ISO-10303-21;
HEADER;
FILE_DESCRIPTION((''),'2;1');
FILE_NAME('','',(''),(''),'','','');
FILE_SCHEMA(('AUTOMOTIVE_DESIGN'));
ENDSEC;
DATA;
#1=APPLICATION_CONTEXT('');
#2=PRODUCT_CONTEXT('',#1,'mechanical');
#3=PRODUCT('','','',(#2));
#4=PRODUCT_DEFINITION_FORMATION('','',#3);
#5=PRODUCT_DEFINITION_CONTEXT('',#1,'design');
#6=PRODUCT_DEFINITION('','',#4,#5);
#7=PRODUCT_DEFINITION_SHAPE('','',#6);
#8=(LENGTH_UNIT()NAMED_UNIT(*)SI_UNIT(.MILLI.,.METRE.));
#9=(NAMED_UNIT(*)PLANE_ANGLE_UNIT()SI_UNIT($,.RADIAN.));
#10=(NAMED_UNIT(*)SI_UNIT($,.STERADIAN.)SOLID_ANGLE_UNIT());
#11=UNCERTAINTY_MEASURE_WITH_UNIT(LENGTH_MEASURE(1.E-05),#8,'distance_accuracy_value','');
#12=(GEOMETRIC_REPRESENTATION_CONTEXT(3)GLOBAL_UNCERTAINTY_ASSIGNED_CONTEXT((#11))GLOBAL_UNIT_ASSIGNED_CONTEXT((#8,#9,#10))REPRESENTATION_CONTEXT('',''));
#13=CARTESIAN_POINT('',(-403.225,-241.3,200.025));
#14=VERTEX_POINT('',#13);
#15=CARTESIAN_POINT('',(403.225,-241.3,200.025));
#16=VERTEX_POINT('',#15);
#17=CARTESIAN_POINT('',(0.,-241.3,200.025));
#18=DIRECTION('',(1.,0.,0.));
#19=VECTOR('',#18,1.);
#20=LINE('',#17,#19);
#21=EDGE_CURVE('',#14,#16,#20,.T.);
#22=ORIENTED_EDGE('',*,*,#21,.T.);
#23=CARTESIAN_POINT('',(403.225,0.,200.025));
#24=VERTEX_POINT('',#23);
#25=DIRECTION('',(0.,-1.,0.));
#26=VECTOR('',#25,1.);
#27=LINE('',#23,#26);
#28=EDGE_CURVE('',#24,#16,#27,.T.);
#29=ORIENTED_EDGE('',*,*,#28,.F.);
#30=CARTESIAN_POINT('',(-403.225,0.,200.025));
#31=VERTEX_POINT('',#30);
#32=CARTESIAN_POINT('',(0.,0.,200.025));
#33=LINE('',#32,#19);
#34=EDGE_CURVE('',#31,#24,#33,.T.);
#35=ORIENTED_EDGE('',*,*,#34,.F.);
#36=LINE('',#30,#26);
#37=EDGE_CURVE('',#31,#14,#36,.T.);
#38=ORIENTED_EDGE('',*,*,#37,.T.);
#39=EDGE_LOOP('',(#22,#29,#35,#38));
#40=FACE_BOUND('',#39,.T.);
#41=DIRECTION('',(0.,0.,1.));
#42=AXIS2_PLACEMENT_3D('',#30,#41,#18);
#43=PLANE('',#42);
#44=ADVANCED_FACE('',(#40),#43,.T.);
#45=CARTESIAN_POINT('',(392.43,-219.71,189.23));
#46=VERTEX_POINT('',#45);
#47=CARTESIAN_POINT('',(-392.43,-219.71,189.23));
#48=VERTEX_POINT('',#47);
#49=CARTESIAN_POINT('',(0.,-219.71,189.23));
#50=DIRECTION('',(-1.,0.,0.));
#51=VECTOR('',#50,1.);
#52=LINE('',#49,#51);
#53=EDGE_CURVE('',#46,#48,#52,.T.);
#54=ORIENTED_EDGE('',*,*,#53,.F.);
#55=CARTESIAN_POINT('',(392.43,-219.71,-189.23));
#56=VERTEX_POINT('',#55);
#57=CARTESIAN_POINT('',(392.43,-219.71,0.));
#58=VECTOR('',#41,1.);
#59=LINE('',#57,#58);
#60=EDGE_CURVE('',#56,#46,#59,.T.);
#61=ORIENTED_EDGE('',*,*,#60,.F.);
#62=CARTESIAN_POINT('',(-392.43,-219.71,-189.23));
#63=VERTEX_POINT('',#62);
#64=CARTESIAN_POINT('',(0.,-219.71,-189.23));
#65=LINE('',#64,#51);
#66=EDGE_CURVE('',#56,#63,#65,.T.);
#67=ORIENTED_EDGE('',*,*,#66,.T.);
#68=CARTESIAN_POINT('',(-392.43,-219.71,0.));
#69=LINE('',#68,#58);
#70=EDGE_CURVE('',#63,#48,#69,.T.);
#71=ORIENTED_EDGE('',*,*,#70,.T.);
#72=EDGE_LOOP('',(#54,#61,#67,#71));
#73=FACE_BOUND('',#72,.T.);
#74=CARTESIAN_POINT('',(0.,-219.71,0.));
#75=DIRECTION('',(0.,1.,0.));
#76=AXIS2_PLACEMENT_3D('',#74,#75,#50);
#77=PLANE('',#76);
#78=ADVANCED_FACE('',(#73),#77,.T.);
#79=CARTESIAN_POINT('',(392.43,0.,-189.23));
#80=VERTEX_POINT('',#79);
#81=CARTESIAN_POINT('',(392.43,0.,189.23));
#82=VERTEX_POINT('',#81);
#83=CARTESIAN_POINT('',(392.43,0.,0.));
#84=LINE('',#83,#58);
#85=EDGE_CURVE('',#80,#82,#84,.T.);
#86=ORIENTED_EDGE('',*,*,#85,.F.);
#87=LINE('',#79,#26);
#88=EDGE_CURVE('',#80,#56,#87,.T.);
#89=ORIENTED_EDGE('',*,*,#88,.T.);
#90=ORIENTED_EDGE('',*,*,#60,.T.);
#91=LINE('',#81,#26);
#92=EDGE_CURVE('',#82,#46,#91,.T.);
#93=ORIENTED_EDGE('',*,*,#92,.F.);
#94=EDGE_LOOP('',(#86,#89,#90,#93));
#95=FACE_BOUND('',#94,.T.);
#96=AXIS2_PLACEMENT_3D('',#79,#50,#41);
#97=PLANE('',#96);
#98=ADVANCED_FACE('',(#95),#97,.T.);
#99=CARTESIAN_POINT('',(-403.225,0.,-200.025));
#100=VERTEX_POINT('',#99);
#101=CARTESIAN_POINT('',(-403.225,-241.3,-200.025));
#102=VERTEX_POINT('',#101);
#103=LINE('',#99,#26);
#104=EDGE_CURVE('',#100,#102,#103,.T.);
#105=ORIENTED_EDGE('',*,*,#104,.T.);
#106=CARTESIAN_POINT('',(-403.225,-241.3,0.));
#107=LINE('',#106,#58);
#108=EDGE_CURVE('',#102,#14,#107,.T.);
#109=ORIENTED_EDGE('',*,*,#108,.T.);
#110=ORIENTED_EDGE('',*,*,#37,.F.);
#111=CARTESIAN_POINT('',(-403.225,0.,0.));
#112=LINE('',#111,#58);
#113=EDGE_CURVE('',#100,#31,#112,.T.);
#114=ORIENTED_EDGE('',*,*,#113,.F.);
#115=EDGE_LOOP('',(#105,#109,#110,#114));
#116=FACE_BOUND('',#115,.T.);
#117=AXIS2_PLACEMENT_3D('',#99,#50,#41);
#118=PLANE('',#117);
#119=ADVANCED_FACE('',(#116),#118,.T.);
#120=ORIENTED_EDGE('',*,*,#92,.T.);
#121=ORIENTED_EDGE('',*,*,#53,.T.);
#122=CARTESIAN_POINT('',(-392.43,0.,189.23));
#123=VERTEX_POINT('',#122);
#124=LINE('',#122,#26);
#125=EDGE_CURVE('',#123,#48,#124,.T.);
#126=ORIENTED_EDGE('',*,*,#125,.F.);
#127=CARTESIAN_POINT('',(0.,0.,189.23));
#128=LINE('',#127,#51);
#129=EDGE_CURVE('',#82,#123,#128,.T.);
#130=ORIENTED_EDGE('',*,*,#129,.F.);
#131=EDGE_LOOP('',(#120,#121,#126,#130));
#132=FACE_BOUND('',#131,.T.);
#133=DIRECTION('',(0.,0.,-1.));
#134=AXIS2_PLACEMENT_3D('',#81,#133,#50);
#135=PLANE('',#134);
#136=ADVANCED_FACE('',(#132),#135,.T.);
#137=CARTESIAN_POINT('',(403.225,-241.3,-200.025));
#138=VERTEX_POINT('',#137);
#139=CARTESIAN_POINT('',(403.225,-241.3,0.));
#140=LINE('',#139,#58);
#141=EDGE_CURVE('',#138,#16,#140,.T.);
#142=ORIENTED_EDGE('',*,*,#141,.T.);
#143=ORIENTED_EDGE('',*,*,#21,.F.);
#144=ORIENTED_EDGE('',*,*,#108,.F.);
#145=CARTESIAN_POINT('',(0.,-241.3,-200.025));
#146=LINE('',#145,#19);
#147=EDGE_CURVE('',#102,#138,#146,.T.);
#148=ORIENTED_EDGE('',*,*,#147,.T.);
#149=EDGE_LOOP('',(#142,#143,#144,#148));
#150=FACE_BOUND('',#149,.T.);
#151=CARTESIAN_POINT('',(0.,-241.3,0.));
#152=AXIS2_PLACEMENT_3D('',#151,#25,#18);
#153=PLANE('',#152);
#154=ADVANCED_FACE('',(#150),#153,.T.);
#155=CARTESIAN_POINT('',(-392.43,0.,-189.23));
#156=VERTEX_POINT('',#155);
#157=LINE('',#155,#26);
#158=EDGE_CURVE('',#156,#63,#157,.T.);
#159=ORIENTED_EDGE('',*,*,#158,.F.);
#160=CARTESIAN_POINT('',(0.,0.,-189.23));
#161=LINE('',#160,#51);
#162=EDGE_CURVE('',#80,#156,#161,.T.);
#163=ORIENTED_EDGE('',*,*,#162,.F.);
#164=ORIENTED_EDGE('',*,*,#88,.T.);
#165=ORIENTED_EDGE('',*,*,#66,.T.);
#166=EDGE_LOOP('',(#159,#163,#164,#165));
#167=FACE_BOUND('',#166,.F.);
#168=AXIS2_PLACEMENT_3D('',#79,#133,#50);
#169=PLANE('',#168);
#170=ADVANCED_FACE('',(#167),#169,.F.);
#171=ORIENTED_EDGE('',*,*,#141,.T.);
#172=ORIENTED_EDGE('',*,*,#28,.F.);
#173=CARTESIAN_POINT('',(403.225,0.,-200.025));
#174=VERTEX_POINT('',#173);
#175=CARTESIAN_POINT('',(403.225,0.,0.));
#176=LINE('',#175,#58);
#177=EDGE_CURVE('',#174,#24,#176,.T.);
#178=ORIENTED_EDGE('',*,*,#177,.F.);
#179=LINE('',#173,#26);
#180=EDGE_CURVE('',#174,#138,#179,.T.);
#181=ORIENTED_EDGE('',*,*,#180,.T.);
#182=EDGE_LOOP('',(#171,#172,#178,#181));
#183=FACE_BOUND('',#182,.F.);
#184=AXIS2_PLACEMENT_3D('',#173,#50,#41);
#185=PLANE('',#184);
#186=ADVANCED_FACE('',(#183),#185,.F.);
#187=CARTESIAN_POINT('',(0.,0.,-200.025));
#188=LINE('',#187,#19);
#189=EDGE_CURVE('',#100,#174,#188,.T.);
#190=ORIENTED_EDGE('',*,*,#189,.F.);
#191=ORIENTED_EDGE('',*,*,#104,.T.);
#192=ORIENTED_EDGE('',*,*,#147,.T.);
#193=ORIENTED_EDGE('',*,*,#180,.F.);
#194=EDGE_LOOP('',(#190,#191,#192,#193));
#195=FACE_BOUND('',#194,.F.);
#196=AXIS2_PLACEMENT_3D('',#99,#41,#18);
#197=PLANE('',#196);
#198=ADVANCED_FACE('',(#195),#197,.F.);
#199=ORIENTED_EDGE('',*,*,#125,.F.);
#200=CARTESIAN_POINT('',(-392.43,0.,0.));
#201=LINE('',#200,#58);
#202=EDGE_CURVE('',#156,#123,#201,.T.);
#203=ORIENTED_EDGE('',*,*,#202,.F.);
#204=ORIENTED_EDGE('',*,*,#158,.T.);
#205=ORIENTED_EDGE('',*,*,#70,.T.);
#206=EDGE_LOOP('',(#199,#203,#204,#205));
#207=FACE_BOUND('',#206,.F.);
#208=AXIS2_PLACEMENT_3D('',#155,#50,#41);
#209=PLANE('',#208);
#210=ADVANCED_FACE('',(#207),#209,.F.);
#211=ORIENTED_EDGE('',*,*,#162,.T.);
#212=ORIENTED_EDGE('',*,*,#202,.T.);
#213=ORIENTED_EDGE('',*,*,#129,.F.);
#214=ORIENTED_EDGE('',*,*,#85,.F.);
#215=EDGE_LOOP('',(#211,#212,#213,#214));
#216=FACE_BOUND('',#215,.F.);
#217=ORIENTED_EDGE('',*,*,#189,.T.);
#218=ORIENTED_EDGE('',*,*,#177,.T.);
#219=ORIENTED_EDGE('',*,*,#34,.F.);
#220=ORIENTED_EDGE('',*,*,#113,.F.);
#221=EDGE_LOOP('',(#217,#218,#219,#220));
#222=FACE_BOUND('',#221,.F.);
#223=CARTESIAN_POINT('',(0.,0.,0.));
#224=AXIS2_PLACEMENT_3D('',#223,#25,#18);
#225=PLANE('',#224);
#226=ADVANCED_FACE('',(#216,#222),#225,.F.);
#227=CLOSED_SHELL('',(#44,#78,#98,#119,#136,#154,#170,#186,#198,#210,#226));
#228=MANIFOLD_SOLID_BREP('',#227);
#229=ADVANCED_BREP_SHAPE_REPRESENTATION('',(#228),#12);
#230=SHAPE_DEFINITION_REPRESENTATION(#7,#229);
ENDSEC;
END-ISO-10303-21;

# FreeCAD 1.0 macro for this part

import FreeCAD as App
import Part
import Sketcher

V = App.Vector
Q = App.Units.Quantity


def add_polygon(sketch, points):
    """Adds a closed chain of lines whose ends are joined by coincident constraints."""
    first, n = sketch.GeometryCount, len(points)
    for a, b in zip(points, points[1:] + points[:1]):
        sketch.addGeometry(Part.LineSegment(App.Vector(*a, 0), App.Vector(*b, 0)), False)
    for i in range(n):
        sketch.addConstraint(Sketcher.Constraint("Coincident", first + i, 2, first + (i + 1) % n, 1))

doc = App.newDocument("Part")
body = doc.addObject("PartDesign::Body", "Body")

# Sketch on XZ plane
sketch1 = body.newObject("Sketcher::SketchObject", "Sketch")
sketch1.AttachmentSupport = (doc.getObject("XZ_Plane"), [""])
sketch1.MapMode = "FlatFace"
add_polygon(sketch1, [(-403, 200), (-403, -200), (403, -200), (403, 200)])  # lines 0-3
sketch1.addConstraint([
    Sketcher.Constraint("Vertical", 0),
    Sketcher.Constraint("Horizontal", 1),
    Sketcher.Constraint("Vertical", 2),
    Sketcher.Constraint("Horizontal", 3),
    Sketcher.Constraint("Symmetric", 0, 2, 2, 2, -1, 1),
    Sketcher.Constraint("DistanceX", 1, 1, 1, 2, Q("31.75 in")),
    Sketcher.Constraint("DistanceY", 0, 2, 0, 1, Q("15.75 in")),
])
pad1 = body.newObject("PartDesign::Pad", "Pad")
pad1.Profile = sketch1
pad1.Length = Q("9.5 in")

# Sketch on XZ plane
sketch2 = body.newObject("Sketcher::SketchObject", "Sketch001")
sketch2.AttachmentSupport = (doc.getObject("XZ_Plane"), [""])
sketch2.MapMode = "FlatFace"
add_polygon(sketch2, [(392, 189), (392, -189), (-392, -189), (-392, 189)])  # lines 0-3
sketch2.addConstraint([
    Sketcher.Constraint("Vertical", 0),
    Sketcher.Constraint("Horizontal", 1),
    Sketcher.Constraint("Vertical", 2),
    Sketcher.Constraint("Horizontal", 3),
    Sketcher.Constraint("Symmetric", 0, 2, 2, 2, -1, 1),
    Sketcher.Constraint("DistanceX", 1, 2, 1, 1, Q("30.9 in")),
    Sketcher.Constraint("DistanceY", 0, 2, 0, 1, Q("14.9 in")),
])
pocket1 = body.newObject("PartDesign::Pocket", "Pocket")
pocket1.Profile = sketch2
pocket1.Length = Q("8.65 in")
pocket1.Reversed = True

doc.recompute()
